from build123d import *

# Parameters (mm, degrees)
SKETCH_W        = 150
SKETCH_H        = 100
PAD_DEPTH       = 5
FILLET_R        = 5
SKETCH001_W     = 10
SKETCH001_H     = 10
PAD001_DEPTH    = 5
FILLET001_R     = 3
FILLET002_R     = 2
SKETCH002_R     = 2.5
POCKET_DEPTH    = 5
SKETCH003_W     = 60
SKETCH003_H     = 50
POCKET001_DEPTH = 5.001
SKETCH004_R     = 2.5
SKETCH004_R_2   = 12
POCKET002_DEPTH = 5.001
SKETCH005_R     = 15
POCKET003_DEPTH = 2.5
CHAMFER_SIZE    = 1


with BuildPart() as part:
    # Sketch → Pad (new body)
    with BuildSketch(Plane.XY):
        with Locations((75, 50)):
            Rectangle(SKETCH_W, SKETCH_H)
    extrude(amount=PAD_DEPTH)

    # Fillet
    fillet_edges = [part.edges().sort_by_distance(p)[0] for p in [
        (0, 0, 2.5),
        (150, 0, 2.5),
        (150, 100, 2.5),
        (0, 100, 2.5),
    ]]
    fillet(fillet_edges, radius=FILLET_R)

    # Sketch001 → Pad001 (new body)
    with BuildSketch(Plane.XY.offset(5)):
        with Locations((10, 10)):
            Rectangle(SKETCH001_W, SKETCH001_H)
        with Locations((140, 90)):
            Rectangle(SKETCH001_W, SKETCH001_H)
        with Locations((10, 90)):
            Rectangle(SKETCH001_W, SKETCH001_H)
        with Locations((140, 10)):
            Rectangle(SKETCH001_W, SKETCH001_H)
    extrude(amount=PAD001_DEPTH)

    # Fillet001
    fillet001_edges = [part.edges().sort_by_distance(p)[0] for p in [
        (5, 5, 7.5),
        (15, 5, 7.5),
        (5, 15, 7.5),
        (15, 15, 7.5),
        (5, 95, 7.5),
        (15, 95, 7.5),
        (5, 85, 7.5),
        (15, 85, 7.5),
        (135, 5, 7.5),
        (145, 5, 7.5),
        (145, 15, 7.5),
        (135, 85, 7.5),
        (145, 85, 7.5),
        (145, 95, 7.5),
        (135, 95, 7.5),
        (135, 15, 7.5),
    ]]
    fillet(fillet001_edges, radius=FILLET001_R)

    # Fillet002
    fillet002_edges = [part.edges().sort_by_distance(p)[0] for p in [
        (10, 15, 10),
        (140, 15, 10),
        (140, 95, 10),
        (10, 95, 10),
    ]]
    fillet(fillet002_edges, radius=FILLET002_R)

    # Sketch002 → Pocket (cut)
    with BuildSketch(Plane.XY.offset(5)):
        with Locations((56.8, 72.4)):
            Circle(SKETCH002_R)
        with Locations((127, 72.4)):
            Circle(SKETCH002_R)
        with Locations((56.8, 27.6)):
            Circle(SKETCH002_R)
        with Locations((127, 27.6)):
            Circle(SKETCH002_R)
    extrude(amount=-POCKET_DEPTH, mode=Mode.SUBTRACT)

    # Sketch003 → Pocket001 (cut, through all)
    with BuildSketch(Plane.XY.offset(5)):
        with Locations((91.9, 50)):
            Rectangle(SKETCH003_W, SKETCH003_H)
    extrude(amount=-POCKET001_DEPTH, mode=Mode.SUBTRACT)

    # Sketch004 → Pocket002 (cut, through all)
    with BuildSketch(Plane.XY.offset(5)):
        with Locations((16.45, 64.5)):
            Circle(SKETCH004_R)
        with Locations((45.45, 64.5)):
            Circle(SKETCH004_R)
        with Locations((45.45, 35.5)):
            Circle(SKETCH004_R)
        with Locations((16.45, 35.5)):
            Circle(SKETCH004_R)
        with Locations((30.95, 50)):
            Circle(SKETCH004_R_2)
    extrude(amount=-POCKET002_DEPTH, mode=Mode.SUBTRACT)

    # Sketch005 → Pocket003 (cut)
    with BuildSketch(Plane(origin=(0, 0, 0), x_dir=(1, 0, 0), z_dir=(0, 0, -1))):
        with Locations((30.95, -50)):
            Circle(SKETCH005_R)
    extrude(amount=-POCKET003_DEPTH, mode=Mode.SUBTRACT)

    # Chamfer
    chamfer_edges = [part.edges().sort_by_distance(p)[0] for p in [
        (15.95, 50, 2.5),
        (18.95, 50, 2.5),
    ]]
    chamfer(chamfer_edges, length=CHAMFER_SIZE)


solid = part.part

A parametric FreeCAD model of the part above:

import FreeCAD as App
import Part
import Sketcher

V = App.Vector


def edges_at(feature, points):
    """Names of the edges that pass closest to the given points."""
    edges = feature.Shape.Edges
    near = lambda p: min(range(len(edges)), key=lambda i: edges[i].distToShape(Part.Vertex(*p))[0])
    return sorted({f"Edge{near(p) + 1}" for p in points})


def add_polygon(sketch, points):
    """Adds a closed chain of lines whose ends are joined by coincident constraints."""
    first, n = sketch.GeometryCount, len(points)
    for a, b in zip(points, points[1:] + points[:1]):
        sketch.addGeometry(Part.LineSegment(App.Vector(*a, 0), App.Vector(*b, 0)), False)
    for i in range(n):
        sketch.addConstraint(Sketcher.Constraint("Coincident", first + i, 2, first + (i + 1) % n, 1))

doc = App.newDocument("Part")
body = doc.addObject("PartDesign::Body", "Body")

# Sketch on XY plane
sketch1 = body.newObject("Sketcher::SketchObject", "Sketch")
sketch1.AttachmentSupport = (doc.getObject("XY_Plane"), [""])
sketch1.MapMode = "FlatFace"
add_polygon(sketch1, [(0, 100), (0, 0), (150, 0), (150, 100)])  # lines 0-3
sketch1.addConstraint(Sketcher.Constraint("Vertical", 0))
sketch1.addConstraint(Sketcher.Constraint("Horizontal", 1))
sketch1.addConstraint(Sketcher.Constraint("Vertical", 2))
sketch1.addConstraint(Sketcher.Constraint("Horizontal", 3))
sketch1.addConstraint(Sketcher.Constraint("Coincident", 0, 2, -1, 1))
sketch1.addConstraint(Sketcher.Constraint("DistanceX", 1, 1, 1, 2, 150.0))
sketch1.addConstraint(Sketcher.Constraint("DistanceY", 0, 2, 0, 1, 100.0))
pad1 = body.newObject("PartDesign::Pad", "Pad")
pad1.Profile = sketch1
pad1.Length = 5
doc.recompute()

fillet = body.newObject("PartDesign::Fillet", "Fillet")
fillet.Base = (pad1, edges_at(pad1, [
    (0, 0, 2.5),
    (150, 0, 2.5),
    (150, 100, 2.5),
    (0, 100, 2.5),
]))
fillet.Radius = 5

# Sketch on XY plane
sketch2 = body.newObject("Sketcher::SketchObject", "Sketch001")
sketch2.AttachmentSupport = (doc.getObject("XY_Plane"), [""])
sketch2.MapMode = "FlatFace"
sketch2.AttachmentOffset = App.Placement(V(0, 0, 5), App.Rotation())
add_polygon(sketch2, [(5, 15), (5, 5), (15, 5), (15, 15)])  # lines 0-3
add_polygon(sketch2, [(135, 95), (135, 85), (145, 85), (145, 95)])  # lines 4-7
add_polygon(sketch2, [(5, 95), (5, 85), (15, 85), (15, 95)])  # lines 8-11
add_polygon(sketch2, [(135, 15), (135, 5), (145, 5), (145, 15)])  # lines 12-15
sketch2.addConstraint(Sketcher.Constraint("Vertical", 0))
sketch2.addConstraint(Sketcher.Constraint("Horizontal", 1))
sketch2.addConstraint(Sketcher.Constraint("Vertical", 2))
sketch2.addConstraint(Sketcher.Constraint("Horizontal", 3))
sketch2.addConstraint(Sketcher.Constraint("Vertical", 4))
sketch2.addConstraint(Sketcher.Constraint("Horizontal", 5))
sketch2.addConstraint(Sketcher.Constraint("Vertical", 6))
sketch2.addConstraint(Sketcher.Constraint("Horizontal", 7))
sketch2.addConstraint(Sketcher.Constraint("Vertical", 8))
sketch2.addConstraint(Sketcher.Constraint("Horizontal", 9))
sketch2.addConstraint(Sketcher.Constraint("Vertical", 10))
sketch2.addConstraint(Sketcher.Constraint("Horizontal", 11))
sketch2.addConstraint(Sketcher.Constraint("Vertical", 12))
sketch2.addConstraint(Sketcher.Constraint("Horizontal", 13))
sketch2.addConstraint(Sketcher.Constraint("Vertical", 14))
sketch2.addConstraint(Sketcher.Constraint("Horizontal", 15))
sketch2.addConstraint(Sketcher.Constraint("Horizontal", 5, 2, 8, 2))
sketch2.addConstraint(Sketcher.Constraint("Horizontal", 7, 2, 10, 2))
sketch2.addConstraint(Sketcher.Constraint("Horizontal", 1, 2, 12, 2))
sketch2.addConstraint(Sketcher.Constraint("Horizontal", 3, 2, 14, 2))
sketch2.addConstraint(Sketcher.Constraint("Vertical", 3, 2, 8, 2))
sketch2.addConstraint(Sketcher.Constraint("Vertical", 2, 2, 9, 2))
sketch2.addConstraint(Sketcher.Constraint("Vertical", 7, 2, 12, 2))
sketch2.addConstraint(Sketcher.Constraint("Vertical", 6, 2, 13, 2))
sketch2.addConstraint(Sketcher.Constraint("Equal", 3, 5))
sketch2.addConstraint(Sketcher.Constraint("Equal", 15, 0))
sketch2.addConstraint(Sketcher.Constraint("Equal", 2, 4))
sketch2.addConstraint(Sketcher.Constraint("DistanceX", 1, 1, 1, 2, 10.0))
sketch2.addConstraint(Sketcher.Constraint("DistanceX", -1, 1, 0, 2, 5.0))
sketch2.addConstraint(Sketcher.Constraint("DistanceY", -1, 1, 0, 2, 5.0))
sketch2.addConstraint(Sketcher.Constraint("DistanceX", -1, 1, 4, 2, 135.0))
sketch2.addConstraint(Sketcher.Constraint("DistanceY", -1, 1, 4, 2, 85.0))
pad2 = body.newObject("PartDesign::Pad", "Pad001")
pad2.Profile = sketch2
pad2.Length = 5
doc.recompute()

fillet2 = body.newObject("PartDesign::Fillet", "Fillet001")
fillet2.Base = (pad2, edges_at(pad2, [
    (5, 5, 7.5),
    (15, 5, 7.5),
    (5, 15, 7.5),
    (15, 15, 7.5),
    (5, 95, 7.5),
    (15, 95, 7.5),
    (5, 85, 7.5),
    (15, 85, 7.5),
    (135, 5, 7.5),
    (145, 5, 7.5),
    (145, 15, 7.5),
    (135, 85, 7.5),
    (145, 85, 7.5),
    (145, 95, 7.5),
    (135, 95, 7.5),
    (135, 15, 7.5),
]))
fillet2.Radius = 3
doc.recompute()

fillet3 = body.newObject("PartDesign::Fillet", "Fillet002")
fillet3.Base = (fillet2, edges_at(fillet2, [
    (10, 15, 10),
    (140, 15, 10),
    (140, 95, 10),
    (10, 95, 10),
]))
fillet3.Radius = 2

# Sketch on XY plane
sketch3 = body.newObject("Sketcher::SketchObject", "Sketch002")
sketch3.AttachmentSupport = (doc.getObject("XY_Plane"), [""])
sketch3.MapMode = "FlatFace"
sketch3.AttachmentOffset = App.Placement(V(0, 0, 5), App.Rotation())
sketch3.addGeometry(Part.Circle(V(56.8, 72.4, 0), V(0, 0, 1), 2.5), False)
sketch3.addGeometry(Part.Circle(V(127, 72.4, 0), V(0, 0, 1), 2.5), False)
sketch3.addGeometry(Part.Circle(V(56.8, 27.6, 0), V(0, 0, 1), 2.5), False)
sketch3.addGeometry(Part.Circle(V(127, 27.6, 0), V(0, 0, 1), 2.5), False)
sketch3.addConstraint(Sketcher.Constraint("Equal", 0, 1))
sketch3.addConstraint(Sketcher.Constraint("Equal", 1, 2))
sketch3.addConstraint(Sketcher.Constraint("Equal", 2, 3))
sketch3.addConstraint(Sketcher.Constraint("Horizontal", 0, 3, 1, 3))
sketch3.addConstraint(Sketcher.Constraint("Horizontal", 2, 3, 3, 3))
sketch3.addConstraint(Sketcher.Constraint("Vertical", 0, 3, 2, 3))
sketch3.addConstraint(Sketcher.Constraint("Vertical", 1, 3, 3, 3))
sketch3.addConstraint(Sketcher.Constraint("Diameter", 0, 5.0))
sketch3.addConstraint(Sketcher.Constraint("DistanceX", -1, 1, 1, 3, 127.0))
sketch3.addConstraint(Sketcher.Constraint("DistanceX", -1, 1, 0, 3, 56.8))
sketch3.addConstraint(Sketcher.Constraint("DistanceY", -1, 1, 0, 3, 72.4))
sketch3.addConstraint(Sketcher.Constraint("DistanceY", -1, 1, 2, 3, 27.6))
pocket1 = body.newObject("PartDesign::Pocket", "Pocket")
pocket1.Profile = sketch3
pocket1.Length = 5

# Sketch on XY plane
sketch4 = body.newObject("Sketcher::SketchObject", "Sketch003")
sketch4.AttachmentSupport = (doc.getObject("XY_Plane"), [""])
sketch4.MapMode = "FlatFace"
sketch4.AttachmentOffset = App.Placement(V(0, 0, 5), App.Rotation())
add_polygon(sketch4, [(62, 75), (62, 25), (122, 25), (122, 75)])  # lines 0-3
sketch4.addConstraint(Sketcher.Constraint("Vertical", 0))
sketch4.addConstraint(Sketcher.Constraint("Horizontal", 1))
sketch4.addConstraint(Sketcher.Constraint("Vertical", 2))
sketch4.addConstraint(Sketcher.Constraint("Horizontal", 3))
sketch4.addConstraint(Sketcher.Constraint("DistanceX", 1, 1, 1, 2, 60.0))
sketch4.addConstraint(Sketcher.Constraint("DistanceY", 0, 2, 0, 1, 50.0))
sketch4.addConstraint(Sketcher.Constraint("DistanceY", -1, 1, 0, 2, 25.0))
sketch4.addConstraint(Sketcher.Constraint("DistanceX", -1, 1, 0, 2, 61.9))
pocket2 = body.newObject("PartDesign::Pocket", "Pocket001")
pocket2.Profile = sketch4
pocket2.Type = "ThroughAll"

# Sketch on XY plane
sketch5 = body.newObject("Sketcher::SketchObject", "Sketch004")
sketch5.AttachmentSupport = (doc.getObject("XY_Plane"), [""])
sketch5.MapMode = "FlatFace"
sketch5.AttachmentOffset = App.Placement(V(0, 0, 5), App.Rotation())
sketch5.addGeometry(Part.Circle(V(16.4, 64.5, 0), V(0, 0, 1), 2.5), False)
sketch5.addGeometry(Part.Circle(V(45.5, 64.5, 0), V(0, 0, 1), 2.5), False)
sketch5.addGeometry(Part.Circle(V(45.5, 35.5, 0), V(0, 0, 1), 2.5), False)
sketch5.addGeometry(Part.Circle(V(16.4, 35.5, 0), V(0, 0, 1), 2.5), False)
sketch5.addGeometry(Part.Circle(V(30.9, 50, 0), V(0, 0, 1), 12), False)
sketch5.addConstraint(Sketcher.Constraint("Equal", 0, 1))
sketch5.addConstraint(Sketcher.Constraint("Equal", 1, 2))
sketch5.addConstraint(Sketcher.Constraint("Equal", 2, 3))
sketch5.addConstraint(Sketcher.Constraint("Horizontal", 0, 3, 1, 3))
sketch5.addConstraint(Sketcher.Constraint("Horizontal", 2, 3, 3, 3))
sketch5.addConstraint(Sketcher.Constraint("Vertical", 1, 3, 2, 3))
sketch5.addConstraint(Sketcher.Constraint("Vertical", 0, 3, 3, 3))
sketch5.addConstraint(Sketcher.Constraint("Diameter", 0, 5.0))
sketch5.addConstraint(Sketcher.Constraint("Diameter", 4, 24.0))
sketch5.addConstraint(Sketcher.Constraint("DistanceY", -1, 1, 4, 3, 50.0))
sketch5.addConstraint(Sketcher.Constraint("DistanceX", 0, 3, 1, 3, 29.0))
sketch5.addConstraint(Sketcher.Constraint("DistanceY", 2, 3, 1, 3, 29.0))
sketch5.addConstraint(Sketcher.Constraint("DistanceY", -1, 1, 0, 3, 64.5))
sketch5.addConstraint(Sketcher.Constraint("DistanceX", 0, 3, 4, 3, 14.5))
sketch5.addConstraint(Sketcher.Constraint("DistanceX", -1, 1, 0, 3, 16.45))
pocket3 = body.newObject("PartDesign::Pocket", "Pocket002")
pocket3.Profile = sketch5
pocket3.Type = "ThroughAll"

# Sketch on XY plane
sketch6 = body.newObject("Sketcher::SketchObject", "Sketch005")
sketch6.AttachmentSupport = (doc.getObject("XY_Plane"), [""])
sketch6.MapMode = "FlatFace"
sketch6.addGeometry(Part.Circle(V(31, 50, 0), V(0, 0, 1), 15), False)
sketch6.addConstraint(Sketcher.Constraint("Diameter", 0, 30.0))
sketch6.addConstraint(Sketcher.Constraint("DistanceY", -1, 1, 0, 3, 50.0))
sketch6.addConstraint(Sketcher.Constraint("DistanceX", -1, 1, 0, 3, 30.95))
pocket4 = body.newObject("PartDesign::Pocket", "Pocket003")
pocket4.Profile = sketch6
pocket4.Length = 2.5
pocket4.Reversed = True
doc.recompute()

chamfer = body.newObject("PartDesign::Chamfer", "Chamfer")
chamfer.Base = (pocket4, edges_at(pocket4, [(15.95, 50, 2.5), (18.95, 50, 2.5)]))
chamfer.Size = 1

doc.recompute()
